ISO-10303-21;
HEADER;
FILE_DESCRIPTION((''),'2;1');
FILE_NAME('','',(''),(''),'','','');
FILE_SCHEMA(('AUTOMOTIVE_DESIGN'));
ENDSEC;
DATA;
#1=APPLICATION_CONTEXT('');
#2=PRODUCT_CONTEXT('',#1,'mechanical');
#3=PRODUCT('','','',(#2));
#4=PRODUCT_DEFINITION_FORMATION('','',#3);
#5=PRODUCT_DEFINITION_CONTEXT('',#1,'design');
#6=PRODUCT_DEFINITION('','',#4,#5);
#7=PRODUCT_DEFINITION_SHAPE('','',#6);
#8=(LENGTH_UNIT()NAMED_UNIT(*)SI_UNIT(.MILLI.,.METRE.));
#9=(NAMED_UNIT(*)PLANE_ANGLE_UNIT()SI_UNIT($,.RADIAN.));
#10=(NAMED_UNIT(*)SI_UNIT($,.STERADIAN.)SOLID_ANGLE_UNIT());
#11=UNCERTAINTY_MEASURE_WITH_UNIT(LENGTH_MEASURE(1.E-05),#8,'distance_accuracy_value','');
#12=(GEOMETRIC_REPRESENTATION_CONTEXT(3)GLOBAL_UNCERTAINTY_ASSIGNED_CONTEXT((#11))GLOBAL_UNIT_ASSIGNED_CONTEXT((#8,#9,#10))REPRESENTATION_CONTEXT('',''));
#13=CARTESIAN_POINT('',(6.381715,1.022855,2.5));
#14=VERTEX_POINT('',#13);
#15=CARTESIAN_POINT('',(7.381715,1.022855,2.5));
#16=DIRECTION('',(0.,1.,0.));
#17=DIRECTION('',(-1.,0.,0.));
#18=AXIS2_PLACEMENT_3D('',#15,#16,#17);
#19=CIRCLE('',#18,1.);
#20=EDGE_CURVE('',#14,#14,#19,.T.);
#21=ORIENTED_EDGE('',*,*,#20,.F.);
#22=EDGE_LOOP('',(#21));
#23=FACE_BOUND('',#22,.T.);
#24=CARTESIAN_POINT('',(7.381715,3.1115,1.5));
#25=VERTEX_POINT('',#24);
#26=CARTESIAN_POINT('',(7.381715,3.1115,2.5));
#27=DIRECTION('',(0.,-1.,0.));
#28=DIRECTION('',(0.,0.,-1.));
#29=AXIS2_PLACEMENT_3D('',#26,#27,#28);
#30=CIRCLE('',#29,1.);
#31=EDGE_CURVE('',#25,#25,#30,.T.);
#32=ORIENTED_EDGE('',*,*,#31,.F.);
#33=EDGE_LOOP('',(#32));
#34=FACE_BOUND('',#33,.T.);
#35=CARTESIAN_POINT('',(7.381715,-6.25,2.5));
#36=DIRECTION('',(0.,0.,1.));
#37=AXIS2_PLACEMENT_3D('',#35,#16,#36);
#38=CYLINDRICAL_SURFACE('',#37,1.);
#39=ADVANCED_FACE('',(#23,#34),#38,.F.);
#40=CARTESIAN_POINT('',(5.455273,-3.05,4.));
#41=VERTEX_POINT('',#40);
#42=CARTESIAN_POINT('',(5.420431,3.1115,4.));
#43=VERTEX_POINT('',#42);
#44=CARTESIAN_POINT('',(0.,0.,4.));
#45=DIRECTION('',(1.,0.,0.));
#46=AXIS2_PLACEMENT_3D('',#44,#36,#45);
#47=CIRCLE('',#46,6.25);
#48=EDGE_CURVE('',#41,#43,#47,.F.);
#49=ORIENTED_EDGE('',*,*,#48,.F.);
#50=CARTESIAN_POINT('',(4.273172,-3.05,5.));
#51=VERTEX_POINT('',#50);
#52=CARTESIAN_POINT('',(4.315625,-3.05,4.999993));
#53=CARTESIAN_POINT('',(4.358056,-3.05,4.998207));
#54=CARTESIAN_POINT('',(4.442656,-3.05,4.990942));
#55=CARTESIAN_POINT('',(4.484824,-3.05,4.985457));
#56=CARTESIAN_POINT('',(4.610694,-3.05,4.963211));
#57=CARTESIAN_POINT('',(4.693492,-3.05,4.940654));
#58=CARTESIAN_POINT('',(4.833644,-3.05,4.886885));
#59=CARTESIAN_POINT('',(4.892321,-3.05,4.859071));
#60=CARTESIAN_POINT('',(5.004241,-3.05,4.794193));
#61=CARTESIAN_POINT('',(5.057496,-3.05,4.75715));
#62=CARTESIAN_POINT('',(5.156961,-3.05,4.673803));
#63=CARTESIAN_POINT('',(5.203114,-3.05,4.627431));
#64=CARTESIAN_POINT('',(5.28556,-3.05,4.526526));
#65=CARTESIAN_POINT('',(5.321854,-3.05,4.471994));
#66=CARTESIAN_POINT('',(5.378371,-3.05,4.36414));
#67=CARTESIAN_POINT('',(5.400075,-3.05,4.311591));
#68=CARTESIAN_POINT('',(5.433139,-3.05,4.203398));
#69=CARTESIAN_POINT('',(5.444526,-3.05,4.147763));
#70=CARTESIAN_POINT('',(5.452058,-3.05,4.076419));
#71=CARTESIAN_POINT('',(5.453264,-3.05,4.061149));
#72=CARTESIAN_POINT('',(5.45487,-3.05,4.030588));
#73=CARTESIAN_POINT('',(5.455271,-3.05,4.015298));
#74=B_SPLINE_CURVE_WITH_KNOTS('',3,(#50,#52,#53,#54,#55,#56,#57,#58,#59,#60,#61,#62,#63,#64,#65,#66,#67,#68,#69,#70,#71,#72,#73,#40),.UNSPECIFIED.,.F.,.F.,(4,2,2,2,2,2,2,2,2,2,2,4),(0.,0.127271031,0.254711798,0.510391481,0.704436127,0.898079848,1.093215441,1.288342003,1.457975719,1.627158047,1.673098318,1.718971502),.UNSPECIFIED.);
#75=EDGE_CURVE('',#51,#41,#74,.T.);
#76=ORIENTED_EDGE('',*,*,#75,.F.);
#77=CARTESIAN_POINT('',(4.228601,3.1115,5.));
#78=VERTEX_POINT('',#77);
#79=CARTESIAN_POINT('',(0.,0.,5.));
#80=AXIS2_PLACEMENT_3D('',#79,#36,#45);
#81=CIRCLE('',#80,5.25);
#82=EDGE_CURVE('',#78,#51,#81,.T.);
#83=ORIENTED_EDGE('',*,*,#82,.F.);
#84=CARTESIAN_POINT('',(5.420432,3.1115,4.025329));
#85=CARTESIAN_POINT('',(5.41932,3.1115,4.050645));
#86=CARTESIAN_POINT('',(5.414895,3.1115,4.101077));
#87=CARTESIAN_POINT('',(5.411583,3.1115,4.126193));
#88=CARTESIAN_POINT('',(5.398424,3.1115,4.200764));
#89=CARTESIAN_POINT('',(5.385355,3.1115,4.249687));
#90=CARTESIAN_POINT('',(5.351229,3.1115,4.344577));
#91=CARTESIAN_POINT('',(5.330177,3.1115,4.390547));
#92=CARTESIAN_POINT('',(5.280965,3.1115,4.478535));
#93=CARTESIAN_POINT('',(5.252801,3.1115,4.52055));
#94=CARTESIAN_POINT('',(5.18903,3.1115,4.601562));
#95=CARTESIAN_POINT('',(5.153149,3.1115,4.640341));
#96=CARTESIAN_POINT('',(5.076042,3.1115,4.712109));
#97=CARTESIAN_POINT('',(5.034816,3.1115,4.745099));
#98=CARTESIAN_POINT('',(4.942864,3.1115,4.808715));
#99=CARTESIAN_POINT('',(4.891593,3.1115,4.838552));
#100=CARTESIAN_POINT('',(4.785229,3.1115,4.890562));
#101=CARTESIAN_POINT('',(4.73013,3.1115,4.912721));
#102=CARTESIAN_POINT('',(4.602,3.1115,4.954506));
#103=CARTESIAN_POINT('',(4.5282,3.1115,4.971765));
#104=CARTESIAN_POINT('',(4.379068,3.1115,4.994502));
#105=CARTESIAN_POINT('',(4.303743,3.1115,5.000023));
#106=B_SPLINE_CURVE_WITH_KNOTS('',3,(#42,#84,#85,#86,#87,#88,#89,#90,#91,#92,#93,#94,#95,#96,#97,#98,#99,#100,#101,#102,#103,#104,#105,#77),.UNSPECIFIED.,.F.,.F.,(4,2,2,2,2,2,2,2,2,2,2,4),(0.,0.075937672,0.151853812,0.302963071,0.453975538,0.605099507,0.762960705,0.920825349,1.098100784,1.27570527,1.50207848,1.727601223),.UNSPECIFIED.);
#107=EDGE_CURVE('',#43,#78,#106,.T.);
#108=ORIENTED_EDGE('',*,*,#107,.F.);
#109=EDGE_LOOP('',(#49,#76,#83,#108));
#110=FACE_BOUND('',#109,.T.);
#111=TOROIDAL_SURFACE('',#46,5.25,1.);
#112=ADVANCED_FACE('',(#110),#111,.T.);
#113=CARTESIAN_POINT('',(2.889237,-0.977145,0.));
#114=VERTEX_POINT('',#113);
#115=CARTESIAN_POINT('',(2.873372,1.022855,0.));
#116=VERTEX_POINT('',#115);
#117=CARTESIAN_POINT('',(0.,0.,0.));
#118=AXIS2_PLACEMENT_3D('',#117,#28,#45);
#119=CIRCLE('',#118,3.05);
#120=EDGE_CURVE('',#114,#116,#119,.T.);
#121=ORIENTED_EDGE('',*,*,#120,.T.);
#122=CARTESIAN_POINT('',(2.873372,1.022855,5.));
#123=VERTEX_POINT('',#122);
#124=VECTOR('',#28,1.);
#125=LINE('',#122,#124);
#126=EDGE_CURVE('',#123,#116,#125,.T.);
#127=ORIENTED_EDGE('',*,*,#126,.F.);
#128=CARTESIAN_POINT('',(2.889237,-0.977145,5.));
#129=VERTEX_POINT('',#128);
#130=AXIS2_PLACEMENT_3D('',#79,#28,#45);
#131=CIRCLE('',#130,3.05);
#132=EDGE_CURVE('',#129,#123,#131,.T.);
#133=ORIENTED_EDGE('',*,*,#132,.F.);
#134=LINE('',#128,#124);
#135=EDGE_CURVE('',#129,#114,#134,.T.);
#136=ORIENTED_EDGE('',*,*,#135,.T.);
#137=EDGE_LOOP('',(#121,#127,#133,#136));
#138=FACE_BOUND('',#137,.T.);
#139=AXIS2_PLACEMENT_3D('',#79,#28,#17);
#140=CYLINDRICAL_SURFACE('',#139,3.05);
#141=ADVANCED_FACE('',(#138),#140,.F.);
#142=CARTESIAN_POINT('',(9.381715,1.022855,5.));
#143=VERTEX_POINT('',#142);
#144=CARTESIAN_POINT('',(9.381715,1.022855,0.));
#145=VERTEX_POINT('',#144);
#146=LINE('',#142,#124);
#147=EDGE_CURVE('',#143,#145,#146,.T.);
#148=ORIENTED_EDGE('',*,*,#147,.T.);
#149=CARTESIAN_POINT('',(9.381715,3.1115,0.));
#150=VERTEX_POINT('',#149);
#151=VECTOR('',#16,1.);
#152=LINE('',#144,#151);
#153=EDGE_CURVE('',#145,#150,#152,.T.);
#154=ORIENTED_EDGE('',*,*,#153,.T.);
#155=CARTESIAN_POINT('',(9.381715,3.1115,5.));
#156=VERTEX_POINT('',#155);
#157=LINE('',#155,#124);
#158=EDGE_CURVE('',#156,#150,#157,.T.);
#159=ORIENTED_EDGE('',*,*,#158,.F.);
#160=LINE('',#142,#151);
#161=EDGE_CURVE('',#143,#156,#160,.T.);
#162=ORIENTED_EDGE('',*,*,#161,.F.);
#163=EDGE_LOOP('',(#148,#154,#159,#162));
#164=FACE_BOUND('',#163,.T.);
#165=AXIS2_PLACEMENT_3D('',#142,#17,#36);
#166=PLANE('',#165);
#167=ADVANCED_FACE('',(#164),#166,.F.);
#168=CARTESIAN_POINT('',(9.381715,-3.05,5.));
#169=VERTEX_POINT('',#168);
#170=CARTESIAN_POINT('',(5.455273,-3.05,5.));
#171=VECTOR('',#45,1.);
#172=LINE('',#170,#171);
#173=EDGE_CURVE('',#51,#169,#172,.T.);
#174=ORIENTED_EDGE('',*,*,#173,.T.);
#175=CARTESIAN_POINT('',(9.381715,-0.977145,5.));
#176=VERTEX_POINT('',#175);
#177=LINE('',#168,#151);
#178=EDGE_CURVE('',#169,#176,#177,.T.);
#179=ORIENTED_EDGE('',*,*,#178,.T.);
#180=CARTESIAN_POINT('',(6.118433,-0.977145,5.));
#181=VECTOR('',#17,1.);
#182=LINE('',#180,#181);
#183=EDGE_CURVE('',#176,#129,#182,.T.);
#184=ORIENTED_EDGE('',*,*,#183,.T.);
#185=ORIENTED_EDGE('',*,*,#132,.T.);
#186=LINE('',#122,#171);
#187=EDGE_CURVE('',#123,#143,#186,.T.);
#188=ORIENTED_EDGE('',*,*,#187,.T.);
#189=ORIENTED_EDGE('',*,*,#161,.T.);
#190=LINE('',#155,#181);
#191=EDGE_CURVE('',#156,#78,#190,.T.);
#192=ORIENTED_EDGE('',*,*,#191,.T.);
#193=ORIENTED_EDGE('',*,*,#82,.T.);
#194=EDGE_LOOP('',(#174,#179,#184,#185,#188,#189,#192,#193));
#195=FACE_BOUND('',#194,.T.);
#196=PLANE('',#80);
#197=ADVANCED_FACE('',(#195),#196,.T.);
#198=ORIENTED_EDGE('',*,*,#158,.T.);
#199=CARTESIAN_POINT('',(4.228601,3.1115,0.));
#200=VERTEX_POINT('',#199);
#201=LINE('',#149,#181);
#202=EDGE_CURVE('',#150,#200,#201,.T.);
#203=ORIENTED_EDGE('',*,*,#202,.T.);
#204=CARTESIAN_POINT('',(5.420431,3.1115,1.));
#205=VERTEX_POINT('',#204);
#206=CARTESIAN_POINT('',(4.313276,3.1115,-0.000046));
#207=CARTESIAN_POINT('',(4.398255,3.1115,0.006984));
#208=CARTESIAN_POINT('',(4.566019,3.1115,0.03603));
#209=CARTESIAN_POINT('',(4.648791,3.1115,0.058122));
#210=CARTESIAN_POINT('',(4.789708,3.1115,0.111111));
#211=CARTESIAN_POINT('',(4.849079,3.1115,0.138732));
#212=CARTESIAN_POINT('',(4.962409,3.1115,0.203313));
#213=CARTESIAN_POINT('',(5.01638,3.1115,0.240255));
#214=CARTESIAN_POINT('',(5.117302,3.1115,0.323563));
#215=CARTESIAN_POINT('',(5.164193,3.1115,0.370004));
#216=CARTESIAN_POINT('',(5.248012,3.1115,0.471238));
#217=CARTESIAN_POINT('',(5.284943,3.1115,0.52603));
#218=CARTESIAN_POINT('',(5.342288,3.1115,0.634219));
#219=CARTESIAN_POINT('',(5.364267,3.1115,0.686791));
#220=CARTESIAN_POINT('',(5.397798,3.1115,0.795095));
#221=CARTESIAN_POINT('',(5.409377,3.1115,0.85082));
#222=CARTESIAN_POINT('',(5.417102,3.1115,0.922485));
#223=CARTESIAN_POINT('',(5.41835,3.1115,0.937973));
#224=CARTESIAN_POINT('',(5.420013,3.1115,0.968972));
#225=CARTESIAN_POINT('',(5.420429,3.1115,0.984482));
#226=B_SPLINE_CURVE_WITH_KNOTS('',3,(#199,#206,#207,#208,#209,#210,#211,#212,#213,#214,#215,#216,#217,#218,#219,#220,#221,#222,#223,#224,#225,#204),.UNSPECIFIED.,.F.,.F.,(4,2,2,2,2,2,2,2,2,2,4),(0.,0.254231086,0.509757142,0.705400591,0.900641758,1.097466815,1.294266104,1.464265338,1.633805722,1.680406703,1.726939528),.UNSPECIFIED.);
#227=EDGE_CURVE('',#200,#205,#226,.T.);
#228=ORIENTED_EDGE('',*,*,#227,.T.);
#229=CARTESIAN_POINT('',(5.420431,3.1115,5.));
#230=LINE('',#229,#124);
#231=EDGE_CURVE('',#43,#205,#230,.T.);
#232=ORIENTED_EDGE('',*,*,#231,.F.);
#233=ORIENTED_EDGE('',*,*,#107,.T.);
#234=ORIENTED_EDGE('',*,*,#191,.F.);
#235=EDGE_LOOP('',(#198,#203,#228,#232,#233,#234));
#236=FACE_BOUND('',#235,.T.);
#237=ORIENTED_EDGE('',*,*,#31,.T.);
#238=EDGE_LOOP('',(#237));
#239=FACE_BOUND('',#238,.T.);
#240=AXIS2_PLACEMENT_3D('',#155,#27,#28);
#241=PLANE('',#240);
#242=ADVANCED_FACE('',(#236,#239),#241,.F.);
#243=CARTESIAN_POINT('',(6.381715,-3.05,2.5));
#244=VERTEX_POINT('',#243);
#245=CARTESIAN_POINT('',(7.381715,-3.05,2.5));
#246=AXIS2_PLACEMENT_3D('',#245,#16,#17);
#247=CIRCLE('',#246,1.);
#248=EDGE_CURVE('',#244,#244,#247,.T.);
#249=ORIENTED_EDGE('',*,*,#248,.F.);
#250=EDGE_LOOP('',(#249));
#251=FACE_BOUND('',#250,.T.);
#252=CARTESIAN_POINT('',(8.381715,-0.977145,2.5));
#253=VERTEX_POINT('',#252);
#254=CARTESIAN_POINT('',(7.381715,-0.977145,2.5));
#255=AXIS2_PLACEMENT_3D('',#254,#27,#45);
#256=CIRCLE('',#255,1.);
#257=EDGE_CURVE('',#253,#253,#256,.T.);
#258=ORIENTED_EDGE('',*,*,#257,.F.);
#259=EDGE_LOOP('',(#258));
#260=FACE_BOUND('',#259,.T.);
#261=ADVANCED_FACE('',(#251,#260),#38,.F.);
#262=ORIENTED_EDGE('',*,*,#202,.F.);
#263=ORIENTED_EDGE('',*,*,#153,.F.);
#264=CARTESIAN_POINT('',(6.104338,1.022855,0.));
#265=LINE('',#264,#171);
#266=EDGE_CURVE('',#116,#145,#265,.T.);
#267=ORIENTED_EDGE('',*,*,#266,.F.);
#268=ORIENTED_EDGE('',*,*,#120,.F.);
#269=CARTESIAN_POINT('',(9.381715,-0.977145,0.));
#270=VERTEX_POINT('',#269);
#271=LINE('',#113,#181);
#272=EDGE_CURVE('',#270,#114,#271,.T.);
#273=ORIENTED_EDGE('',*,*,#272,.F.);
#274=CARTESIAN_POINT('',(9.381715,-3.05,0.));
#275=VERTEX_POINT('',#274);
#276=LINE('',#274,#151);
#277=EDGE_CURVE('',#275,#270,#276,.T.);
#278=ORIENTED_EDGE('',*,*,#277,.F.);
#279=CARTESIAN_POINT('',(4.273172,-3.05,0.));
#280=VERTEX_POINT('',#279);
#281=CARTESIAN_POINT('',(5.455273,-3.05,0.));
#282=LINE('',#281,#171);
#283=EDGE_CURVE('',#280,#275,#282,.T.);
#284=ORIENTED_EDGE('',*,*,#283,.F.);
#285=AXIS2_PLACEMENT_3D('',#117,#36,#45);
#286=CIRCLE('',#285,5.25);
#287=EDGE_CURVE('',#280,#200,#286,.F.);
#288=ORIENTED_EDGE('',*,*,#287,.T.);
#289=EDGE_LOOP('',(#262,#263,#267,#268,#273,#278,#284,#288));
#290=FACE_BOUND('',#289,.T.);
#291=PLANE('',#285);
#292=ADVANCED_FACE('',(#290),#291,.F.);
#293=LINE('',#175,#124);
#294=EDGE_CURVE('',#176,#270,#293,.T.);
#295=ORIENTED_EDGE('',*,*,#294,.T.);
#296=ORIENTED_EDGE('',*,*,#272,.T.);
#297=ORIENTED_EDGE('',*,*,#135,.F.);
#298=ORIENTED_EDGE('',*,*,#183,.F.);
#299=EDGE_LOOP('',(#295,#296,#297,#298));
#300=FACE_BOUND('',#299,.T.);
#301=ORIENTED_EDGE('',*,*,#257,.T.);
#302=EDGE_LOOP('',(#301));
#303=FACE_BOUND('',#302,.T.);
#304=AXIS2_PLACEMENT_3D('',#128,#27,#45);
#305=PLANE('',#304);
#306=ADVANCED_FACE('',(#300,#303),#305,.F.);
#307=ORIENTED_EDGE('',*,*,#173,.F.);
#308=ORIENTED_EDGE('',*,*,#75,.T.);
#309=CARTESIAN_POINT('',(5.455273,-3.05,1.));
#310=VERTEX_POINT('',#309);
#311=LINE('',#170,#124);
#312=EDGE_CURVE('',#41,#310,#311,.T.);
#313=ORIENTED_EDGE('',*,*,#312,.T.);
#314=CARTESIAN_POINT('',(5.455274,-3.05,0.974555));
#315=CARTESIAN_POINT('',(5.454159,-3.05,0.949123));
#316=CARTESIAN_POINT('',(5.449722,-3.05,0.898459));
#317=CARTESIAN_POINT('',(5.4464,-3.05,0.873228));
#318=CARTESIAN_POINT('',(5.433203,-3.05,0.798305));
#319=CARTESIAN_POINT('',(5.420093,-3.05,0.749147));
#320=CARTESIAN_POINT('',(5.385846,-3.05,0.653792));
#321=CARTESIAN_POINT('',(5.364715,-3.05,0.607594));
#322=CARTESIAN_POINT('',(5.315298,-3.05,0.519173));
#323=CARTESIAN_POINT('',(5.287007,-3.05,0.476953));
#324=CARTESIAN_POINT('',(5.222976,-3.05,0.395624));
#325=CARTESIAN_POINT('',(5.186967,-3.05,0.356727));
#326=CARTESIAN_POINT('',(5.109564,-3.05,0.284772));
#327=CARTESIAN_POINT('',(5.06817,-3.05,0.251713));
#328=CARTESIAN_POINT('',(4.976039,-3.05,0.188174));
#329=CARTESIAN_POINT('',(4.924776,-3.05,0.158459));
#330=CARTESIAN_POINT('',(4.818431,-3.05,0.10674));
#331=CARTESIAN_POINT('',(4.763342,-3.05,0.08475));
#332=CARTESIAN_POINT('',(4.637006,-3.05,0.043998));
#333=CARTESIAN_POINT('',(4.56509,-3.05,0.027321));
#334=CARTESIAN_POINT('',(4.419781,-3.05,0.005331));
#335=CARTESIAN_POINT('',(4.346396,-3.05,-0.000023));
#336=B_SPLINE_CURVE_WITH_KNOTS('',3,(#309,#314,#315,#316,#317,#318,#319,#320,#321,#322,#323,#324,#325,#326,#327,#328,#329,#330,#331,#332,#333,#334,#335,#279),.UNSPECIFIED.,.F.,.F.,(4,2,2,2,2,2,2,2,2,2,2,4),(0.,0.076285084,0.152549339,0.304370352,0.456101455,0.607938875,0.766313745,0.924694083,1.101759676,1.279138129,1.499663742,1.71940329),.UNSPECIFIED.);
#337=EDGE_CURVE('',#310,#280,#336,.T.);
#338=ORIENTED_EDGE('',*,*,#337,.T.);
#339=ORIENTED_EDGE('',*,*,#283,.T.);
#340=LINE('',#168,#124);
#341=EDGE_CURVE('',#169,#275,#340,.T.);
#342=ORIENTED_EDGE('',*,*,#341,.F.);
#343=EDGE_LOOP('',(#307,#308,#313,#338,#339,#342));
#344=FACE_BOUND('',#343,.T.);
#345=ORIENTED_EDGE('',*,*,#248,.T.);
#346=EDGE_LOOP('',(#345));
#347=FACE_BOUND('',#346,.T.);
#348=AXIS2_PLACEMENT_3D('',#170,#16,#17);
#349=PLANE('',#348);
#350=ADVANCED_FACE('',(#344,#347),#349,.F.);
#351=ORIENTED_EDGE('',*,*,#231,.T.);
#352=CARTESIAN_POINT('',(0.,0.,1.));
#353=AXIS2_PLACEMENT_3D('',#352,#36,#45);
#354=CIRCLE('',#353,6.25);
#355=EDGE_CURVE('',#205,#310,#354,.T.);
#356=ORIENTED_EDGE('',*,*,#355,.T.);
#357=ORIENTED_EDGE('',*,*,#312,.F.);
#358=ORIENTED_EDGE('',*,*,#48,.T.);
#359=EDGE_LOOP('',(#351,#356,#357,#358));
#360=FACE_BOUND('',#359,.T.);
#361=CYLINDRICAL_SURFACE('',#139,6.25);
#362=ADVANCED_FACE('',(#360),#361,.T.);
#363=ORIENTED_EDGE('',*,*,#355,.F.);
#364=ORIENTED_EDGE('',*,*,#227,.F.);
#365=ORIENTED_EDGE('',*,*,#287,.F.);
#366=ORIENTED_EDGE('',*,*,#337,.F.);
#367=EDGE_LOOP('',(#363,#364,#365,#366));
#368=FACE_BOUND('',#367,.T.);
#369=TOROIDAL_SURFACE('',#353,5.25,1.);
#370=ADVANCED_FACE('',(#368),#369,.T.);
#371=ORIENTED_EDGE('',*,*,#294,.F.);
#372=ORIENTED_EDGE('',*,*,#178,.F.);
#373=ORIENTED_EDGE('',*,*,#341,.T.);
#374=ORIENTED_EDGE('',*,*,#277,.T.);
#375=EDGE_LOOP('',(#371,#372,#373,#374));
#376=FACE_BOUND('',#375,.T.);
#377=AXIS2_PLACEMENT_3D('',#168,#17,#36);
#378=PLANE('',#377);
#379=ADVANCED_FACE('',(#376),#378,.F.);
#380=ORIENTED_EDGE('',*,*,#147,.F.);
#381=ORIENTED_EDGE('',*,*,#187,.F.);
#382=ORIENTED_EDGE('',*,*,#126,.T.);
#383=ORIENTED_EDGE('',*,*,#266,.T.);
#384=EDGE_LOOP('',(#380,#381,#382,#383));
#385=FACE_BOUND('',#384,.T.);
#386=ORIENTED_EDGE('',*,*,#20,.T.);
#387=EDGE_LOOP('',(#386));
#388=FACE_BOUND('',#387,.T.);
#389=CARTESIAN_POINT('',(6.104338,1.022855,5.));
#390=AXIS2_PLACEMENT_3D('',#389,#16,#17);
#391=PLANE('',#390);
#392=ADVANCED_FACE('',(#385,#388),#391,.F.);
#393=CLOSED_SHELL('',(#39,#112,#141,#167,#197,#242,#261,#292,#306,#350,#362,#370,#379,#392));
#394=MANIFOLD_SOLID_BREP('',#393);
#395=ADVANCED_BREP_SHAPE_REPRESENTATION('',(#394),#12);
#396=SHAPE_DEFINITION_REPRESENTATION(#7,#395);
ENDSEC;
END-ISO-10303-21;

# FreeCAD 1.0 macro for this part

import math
import FreeCAD as App
import Part
import Sketcher
from FreeCAD import Vector
Q = App.Units.Quantity


def edges_at(feature, points):
    """Names of the edges that pass closest to the given points."""
    edges = feature.Shape.Edges
    near = lambda p: min(range(len(edges)), key=lambda i: edges[i].distToShape(Part.Vertex(*p))[0])
    return sorted({f"Edge{near(p) + 1}" for p in points})

doc = App.newDocument("Part")
body = doc.addObject("PartDesign::Body", "Body")

sketch1 = body.newObject("Sketcher::SketchObject", "Sketch")
sketch1.AttachmentSupport = (doc.getObject("XY_Plane"), [""])
sketch1.MapMode = "FlatFace"
sketch1.addGeometry(Part.LineSegment(Vector(9.4, -1, 0), Vector(2.9, -1, 0)), False)
sketch1.addGeometry(Part.ArcOfCircle(Part.Circle(Vector(0, 0, 0), Vector(0, 0, 1), 3), math.radians(20), math.radians(341)), False)
sketch1.addGeometry(Part.LineSegment(Vector(2.9, 1, 0), Vector(9.4, 1, 0)), False)
sketch1.addGeometry(Part.LineSegment(Vector(9.4, 1, 0), Vector(9.4, 3.1, 0)), False)
sketch1.addGeometry(Part.LineSegment(Vector(9.4, 3.1, 0), Vector(5.4, 3.1, 0)), False)
sketch1.addGeometry(Part.ArcOfCircle(Part.Circle(Vector(0, 0, 0), Vector(0, 0, 1), 6.2), math.radians(30), math.radians(331)), False)
sketch1.addGeometry(Part.LineSegment(Vector(5.5, -3, 0), Vector(9.4, -3, 0)), False)
sketch1.addGeometry(Part.LineSegment(Vector(9.4, -3, 0), Vector(9.4, -1, 0)), False)
sketch1.addConstraint(Sketcher.Constraint("Coincident", 0, 2, 1, 2))
sketch1.addConstraint(Sketcher.Constraint("Coincident", 1, 1, 2, 1))
sketch1.addConstraint(Sketcher.Constraint("Coincident", 2, 2, 3, 1))
sketch1.addConstraint(Sketcher.Constraint("Coincident", 3, 2, 4, 1))
sketch1.addConstraint(Sketcher.Constraint("Coincident", 4, 2, 5, 1))
sketch1.addConstraint(Sketcher.Constraint("Coincident", 5, 2, 6, 1))
sketch1.addConstraint(Sketcher.Constraint("Coincident", 6, 2, 7, 1))
sketch1.addConstraint(Sketcher.Constraint("Coincident", 7, 2, 0, 1))
sketch1.addConstraint(Sketcher.Constraint("Horizontal", 0))
sketch1.addConstraint(Sketcher.Constraint("Horizontal", 2))
sketch1.addConstraint(Sketcher.Constraint("Vertical", 3))
sketch1.addConstraint(Sketcher.Constraint("Horizontal", 4))
sketch1.addConstraint(Sketcher.Constraint("Horizontal", 6))
sketch1.addConstraint(Sketcher.Constraint("Vertical", 7))
sketch1.addConstraint(Sketcher.Constraint("Coincident", 1, 3, -1, 1))
sketch1.addConstraint(Sketcher.Constraint("Coincident", 5, 3, -1, 1))
sketch1.addConstraint(Sketcher.Constraint("Vertical", 3, 2, 6, 2))
sketch1.addConstraint(Sketcher.Constraint("Radius", 1, Q("3.05 mm")))
sketch1.addConstraint(Sketcher.Constraint("Radius", 5, Q("6.25 mm")))
sketch1.addConstraint(Sketcher.Constraint("DistanceY", 0, 2, 1, 1, Q("2 mm")))
sketch1.addConstraint(Sketcher.Constraint("DistanceY", 5, 2, -1, 1, Q("3.05 mm")))
sketch1.addConstraint(Sketcher.Constraint("DistanceX", 0, 2, 0, 1, Q("6.492478 mm")))
sketch1.addConstraint(Sketcher.Constraint("DistanceY", -1, 1, 3, 2, Q("3.1115 mm")))
sketch1.addConstraint(Sketcher.Constraint("DistanceX", 1, 1, 5, 2, Q("2.581901 mm")))
pad1 = body.newObject("PartDesign::Pad", "Pad")
pad1.Profile = sketch1
pad1.Length = 5
doc.recompute()

fillet = body.newObject("PartDesign::Fillet", "Fillet")
fillet.Base = (pad1, edges_at(pad1, [(-6.25, -0.035, 5)]))
fillet.Radius = 1
doc.recompute()

fillet2 = body.newObject("PartDesign::Fillet", "Fillet001")
fillet2.Base = (fillet, edges_at(fillet, [(-6.25, -0.035, 0)]))
fillet2.Radius = 1

sketch2 = body.newObject("Sketcher::SketchObject", "Sketch001")
sketch2.AttachmentSupport = (doc.getObject("XZ_Plane"), [""])
sketch2.MapMode = "FlatFace"
sketch2.AttachmentOffset = App.Placement(Vector(0, 0, 0.977145), App.Rotation())
sketch2.addGeometry(Part.Circle(Vector(7.4, 2.5, 0), Vector(0, 0, 1), 1), False)
sketch2.addConstraint(Sketcher.Constraint("Diameter", 0, Q("2 mm")))
sketch2.addConstraint(Sketcher.Constraint("DistanceY", -1, 1, 0, 3, Q("2.5 mm")))
sketch2.addConstraint(Sketcher.Constraint("DistanceX", -1, 1, 0, 3, Q("7.381715 mm")))
pocket1 = body.newObject("PartDesign::Pocket", "Pocket")
pocket1.Profile = sketch2
pocket1.Type = "ThroughAll"
pocket1.Midplane = True

doc.recompute()
